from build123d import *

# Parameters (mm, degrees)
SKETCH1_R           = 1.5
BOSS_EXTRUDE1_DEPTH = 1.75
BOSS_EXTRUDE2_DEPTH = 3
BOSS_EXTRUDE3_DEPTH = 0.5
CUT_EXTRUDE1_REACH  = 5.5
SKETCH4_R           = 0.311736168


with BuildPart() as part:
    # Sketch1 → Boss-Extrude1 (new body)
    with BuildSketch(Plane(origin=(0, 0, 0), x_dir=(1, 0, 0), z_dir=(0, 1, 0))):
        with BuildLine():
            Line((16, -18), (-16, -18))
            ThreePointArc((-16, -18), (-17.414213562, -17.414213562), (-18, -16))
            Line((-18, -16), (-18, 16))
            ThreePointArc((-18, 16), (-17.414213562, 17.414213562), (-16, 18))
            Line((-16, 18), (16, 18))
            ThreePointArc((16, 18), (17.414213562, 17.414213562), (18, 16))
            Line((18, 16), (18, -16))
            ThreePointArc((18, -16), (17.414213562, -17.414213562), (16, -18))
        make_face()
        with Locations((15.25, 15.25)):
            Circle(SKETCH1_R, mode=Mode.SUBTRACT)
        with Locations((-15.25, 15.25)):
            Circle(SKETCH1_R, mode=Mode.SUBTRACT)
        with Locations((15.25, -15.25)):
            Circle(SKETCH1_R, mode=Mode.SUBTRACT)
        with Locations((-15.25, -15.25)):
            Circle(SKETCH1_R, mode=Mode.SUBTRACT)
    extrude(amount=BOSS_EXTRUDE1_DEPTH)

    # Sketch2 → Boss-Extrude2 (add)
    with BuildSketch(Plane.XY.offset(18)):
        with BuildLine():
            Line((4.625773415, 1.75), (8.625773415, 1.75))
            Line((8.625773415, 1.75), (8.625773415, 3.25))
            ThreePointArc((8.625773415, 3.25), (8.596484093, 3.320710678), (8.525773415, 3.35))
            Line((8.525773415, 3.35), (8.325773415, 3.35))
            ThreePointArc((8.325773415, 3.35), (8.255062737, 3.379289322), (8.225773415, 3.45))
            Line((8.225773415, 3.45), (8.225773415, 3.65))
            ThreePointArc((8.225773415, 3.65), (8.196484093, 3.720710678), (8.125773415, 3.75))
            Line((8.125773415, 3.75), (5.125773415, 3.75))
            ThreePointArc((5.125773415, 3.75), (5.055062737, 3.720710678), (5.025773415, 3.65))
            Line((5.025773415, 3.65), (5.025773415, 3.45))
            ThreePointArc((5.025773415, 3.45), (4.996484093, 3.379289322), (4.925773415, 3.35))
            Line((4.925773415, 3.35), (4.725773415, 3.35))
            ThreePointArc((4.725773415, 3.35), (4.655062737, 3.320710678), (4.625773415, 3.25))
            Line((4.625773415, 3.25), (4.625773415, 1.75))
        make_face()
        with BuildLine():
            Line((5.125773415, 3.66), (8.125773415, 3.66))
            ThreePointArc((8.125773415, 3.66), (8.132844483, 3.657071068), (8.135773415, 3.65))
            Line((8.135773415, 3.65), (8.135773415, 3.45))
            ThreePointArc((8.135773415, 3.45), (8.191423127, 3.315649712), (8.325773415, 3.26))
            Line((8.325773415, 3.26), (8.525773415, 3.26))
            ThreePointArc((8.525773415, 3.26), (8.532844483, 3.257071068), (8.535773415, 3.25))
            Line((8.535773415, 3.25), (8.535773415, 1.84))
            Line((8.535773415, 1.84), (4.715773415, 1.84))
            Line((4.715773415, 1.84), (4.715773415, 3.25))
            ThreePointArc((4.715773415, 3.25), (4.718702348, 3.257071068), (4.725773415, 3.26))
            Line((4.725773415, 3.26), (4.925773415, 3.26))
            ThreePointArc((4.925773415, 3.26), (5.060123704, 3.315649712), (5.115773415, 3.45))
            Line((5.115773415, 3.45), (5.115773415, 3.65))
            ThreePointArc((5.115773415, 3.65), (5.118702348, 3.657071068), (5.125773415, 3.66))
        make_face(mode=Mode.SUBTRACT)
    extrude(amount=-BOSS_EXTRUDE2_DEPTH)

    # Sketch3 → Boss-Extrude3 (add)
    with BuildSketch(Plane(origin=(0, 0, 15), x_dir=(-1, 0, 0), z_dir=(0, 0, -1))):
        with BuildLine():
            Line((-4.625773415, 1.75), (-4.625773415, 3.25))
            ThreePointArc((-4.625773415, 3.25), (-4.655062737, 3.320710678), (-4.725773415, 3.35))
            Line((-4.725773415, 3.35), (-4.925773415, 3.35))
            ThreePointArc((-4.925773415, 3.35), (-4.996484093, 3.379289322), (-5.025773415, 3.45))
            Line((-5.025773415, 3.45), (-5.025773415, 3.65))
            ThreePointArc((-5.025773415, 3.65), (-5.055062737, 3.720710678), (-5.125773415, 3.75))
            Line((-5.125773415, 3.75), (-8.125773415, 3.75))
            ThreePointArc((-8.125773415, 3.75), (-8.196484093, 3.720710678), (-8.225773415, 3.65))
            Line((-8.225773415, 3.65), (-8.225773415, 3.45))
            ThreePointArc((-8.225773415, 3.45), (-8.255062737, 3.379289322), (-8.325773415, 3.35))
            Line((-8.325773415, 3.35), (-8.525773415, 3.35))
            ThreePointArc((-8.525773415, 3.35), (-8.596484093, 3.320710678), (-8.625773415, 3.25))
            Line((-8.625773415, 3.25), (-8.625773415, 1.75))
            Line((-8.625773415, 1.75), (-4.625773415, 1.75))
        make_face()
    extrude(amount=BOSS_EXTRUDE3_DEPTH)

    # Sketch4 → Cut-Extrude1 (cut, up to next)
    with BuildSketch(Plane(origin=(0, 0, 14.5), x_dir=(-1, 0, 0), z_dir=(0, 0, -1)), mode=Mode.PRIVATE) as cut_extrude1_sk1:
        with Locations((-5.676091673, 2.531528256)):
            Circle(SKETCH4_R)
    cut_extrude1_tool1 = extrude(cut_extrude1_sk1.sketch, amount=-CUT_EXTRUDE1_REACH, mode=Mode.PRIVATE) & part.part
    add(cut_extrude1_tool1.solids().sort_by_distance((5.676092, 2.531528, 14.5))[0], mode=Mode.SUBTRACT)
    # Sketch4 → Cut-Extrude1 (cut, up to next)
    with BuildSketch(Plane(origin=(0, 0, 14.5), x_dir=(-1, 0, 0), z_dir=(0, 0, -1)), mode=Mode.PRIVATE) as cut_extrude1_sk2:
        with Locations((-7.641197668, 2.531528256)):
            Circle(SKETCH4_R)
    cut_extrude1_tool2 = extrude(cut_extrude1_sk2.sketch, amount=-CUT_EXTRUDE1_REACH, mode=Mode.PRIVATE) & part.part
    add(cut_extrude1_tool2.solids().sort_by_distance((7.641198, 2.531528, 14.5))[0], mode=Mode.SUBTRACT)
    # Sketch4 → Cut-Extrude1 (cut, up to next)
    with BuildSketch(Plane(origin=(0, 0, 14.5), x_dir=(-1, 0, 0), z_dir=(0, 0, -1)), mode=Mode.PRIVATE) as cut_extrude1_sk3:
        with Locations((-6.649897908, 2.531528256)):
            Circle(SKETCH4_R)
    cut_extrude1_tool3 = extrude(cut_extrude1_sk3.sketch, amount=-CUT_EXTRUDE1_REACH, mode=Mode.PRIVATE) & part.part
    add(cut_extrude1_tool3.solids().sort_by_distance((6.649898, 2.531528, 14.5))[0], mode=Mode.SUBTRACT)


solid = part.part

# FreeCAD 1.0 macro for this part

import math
import FreeCAD as App
import Part
import Sketcher
from FreeCAD import Vector

doc = App.newDocument("Part")
params = doc.addObject("Spreadsheet::Sheet", "Params")
for row, (alias, value) in enumerate([
    ("sketch1_diameter", "3 mm"),
    ("sketch1_radius", "2 mm"),
    ("sketch1_width", "32 mm"),
    ("pad1_length", "1.75 mm"),
    ("sketch2_radius", "0.1 mm"),
    ("sketch2_width", "4 mm"),
    ("sketch2_width2", "3 mm"),
    ("sketch2_radius2", "0.01 mm"),
    ("sketch2_height", "1.5 mm"),
    ("pad2_length", "3 mm"),
    ("sketch3_radius", "0.1 mm"),
    ("sketch3_width", "3 mm"),
    ("sketch3_width2", "4 mm"),
    ("sketch3_height", "1.5 mm"),
    ("pad3_length", "0.5 mm"),
], start=1):
    params.set(f"A{row}", alias)
    params.set(f"B{row}", "=" + value)
    params.setAlias(f"B{row}", alias)

body = doc.addObject("PartDesign::Body", "Body")

# Sketch on XZ plane
sketch1 = body.newObject("Sketcher::SketchObject", "Sketch")
sketch1.AttachmentSupport = (doc.getObject("XZ_Plane"), [""])
sketch1.MapMode = "FlatFace"
sketch1.addGeometry(Part.LineSegment(Vector(-16, 18, 0), Vector(16, 18, 0)), False)
sketch1.addGeometry(Part.ArcOfCircle(Part.Circle(Vector(16, 16, 0), Vector(0, 0, 1), 2), math.radians(0), math.radians(90)), False)
sketch1.addGeometry(Part.LineSegment(Vector(18, 16, 0), Vector(18, -16, 0)), False)
sketch1.addGeometry(Part.ArcOfCircle(Part.Circle(Vector(16, -16, 0), Vector(0, 0, 1), 2), math.radians(-90), math.radians(0)), False)
sketch1.addGeometry(Part.LineSegment(Vector(16, -18, 0), Vector(-16, -18, 0)), False)
sketch1.addGeometry(Part.ArcOfCircle(Part.Circle(Vector(-16, -16, 0), Vector(0, 0, 1), 2), math.radians(-180), math.radians(-90)), False)
sketch1.addGeometry(Part.LineSegment(Vector(-18, -16, 0), Vector(-18, 16, 0)), False)
sketch1.addGeometry(Part.ArcOfCircle(Part.Circle(Vector(-16, 16, 0), Vector(0, 0, 1), 2), math.radians(90), math.radians(180)), False)
sketch1.addGeometry(Part.Circle(Vector(15.25, 15.25, 0), Vector(0, 0, 1), 1.5), False)
sketch1.addGeometry(Part.Circle(Vector(-15.25, 15.25, 0), Vector(0, 0, 1), 1.5), False)
sketch1.addGeometry(Part.Circle(Vector(15.25, -15.25, 0), Vector(0, 0, 1), 1.5), False)
sketch1.addGeometry(Part.Circle(Vector(-15.25, -15.25, 0), Vector(0, 0, 1), 1.5), False)
sketch1.addConstraint(Sketcher.Constraint("Tangent", 0, 2, 1, 2))
sketch1.addConstraint(Sketcher.Constraint("Tangent", 1, 1, 2, 1))
sketch1.addConstraint(Sketcher.Constraint("Tangent", 2, 2, 3, 2))
sketch1.addConstraint(Sketcher.Constraint("Tangent", 3, 1, 4, 1))
sketch1.addConstraint(Sketcher.Constraint("Tangent", 4, 2, 5, 2))
sketch1.addConstraint(Sketcher.Constraint("Tangent", 5, 1, 6, 1))
sketch1.addConstraint(Sketcher.Constraint("Tangent", 6, 2, 7, 2))
sketch1.addConstraint(Sketcher.Constraint("Tangent", 7, 1, 0, 1))
sketch1.addConstraint(Sketcher.Constraint("Horizontal", 0))
sketch1.addConstraint(Sketcher.Constraint("Vertical", 2))
sketch1.addConstraint(Sketcher.Constraint("Horizontal", 4))
sketch1.addConstraint(Sketcher.Constraint("Vertical", 6))
sketch1.addConstraint(Sketcher.Constraint("Equal", 1, 3))
sketch1.addConstraint(Sketcher.Constraint("Equal", 3, 5))
sketch1.addConstraint(Sketcher.Constraint("Equal", 5, 7))
sketch1.addConstraint(Sketcher.Constraint("Equal", 8, 9))
sketch1.addConstraint(Sketcher.Constraint("Equal", 9, 10))
sketch1.addConstraint(Sketcher.Constraint("Equal", 10, 11))
sketch1.addConstraint(Sketcher.Constraint("Symmetric", 1, 3, 5, 3, -1, 1))
sketch1.addConstraint(Sketcher.Constraint("Symmetric", 9, 3, 10, 3, -1, 1))
sketch1.addConstraint(Sketcher.Constraint("Symmetric", 8, 3, 11, 3, -1, 1))
sketch1.addConstraint(Sketcher.Constraint("Symmetric", 8, 3, 9, 3, -2))
sketch1.addConstraint(Sketcher.Constraint("Equal", 4, 2))
sketch1.addConstraint(Sketcher.Constraint("Diameter", 8, 3.0))
sketch1.addConstraint(Sketcher.Constraint("Radius", 1, 2.0))
sketch1.addConstraint(Sketcher.Constraint("DistanceX", 0, 1, 0, 2, 32.0))
sketch1.addConstraint(Sketcher.Constraint("DistanceX", 9, 3, 8, 3, 30.5))
sketch1.addConstraint(Sketcher.Constraint("DistanceY", 10, 3, 8, 3, 30.5))
sketch1.setExpression("Constraints[23]", "Params.sketch1_diameter")
sketch1.setExpression("Constraints[24]", "Params.sketch1_radius")
sketch1.setExpression("Constraints[25]", "Params.sketch1_width")
pad1 = body.newObject("PartDesign::Pad", "Pad")
pad1.Profile = sketch1
pad1.setExpression("Length", "Params.pad1_length")
pad1.Reversed = True

# Sketch on XY plane
sketch2 = body.newObject("Sketcher::SketchObject", "Sketch001")
sketch2.AttachmentSupport = (doc.getObject("XY_Plane"), [""])
sketch2.MapMode = "FlatFace"
sketch2.AttachmentOffset = App.Placement(Vector(0, 0, 18), App.Rotation())
sketch2.addGeometry(Part.LineSegment(Vector(4.625773, 1.75, 0), Vector(8.625773, 1.75, 0)), False)
sketch2.addGeometry(Part.LineSegment(Vector(8.625773, 1.75, 0), Vector(8.625773, 3.25, 0)), False)
sketch2.addGeometry(Part.ArcOfCircle(Part.Circle(Vector(8.525773, 3.25, 0), Vector(0, 0, 1), 0.1), math.radians(0), math.radians(90)), False)
sketch2.addGeometry(Part.LineSegment(Vector(8.525773, 3.35, 0), Vector(8.325773, 3.35, 0)), False)
sketch2.addGeometry(Part.ArcOfCircle(Part.Circle(Vector(8.325773, 3.45, 0), Vector(0, 0, 1), 0.1), math.radians(180), math.radians(270)), False)
sketch2.addGeometry(Part.LineSegment(Vector(8.225773, 3.45, 0), Vector(8.225773, 3.65, 0)), False)
sketch2.addGeometry(Part.ArcOfCircle(Part.Circle(Vector(8.125773, 3.65, 0), Vector(0, 0, 1), 0.1), math.radians(0), math.radians(90)), False)
sketch2.addGeometry(Part.LineSegment(Vector(8.125773, 3.75, 0), Vector(5.125773, 3.75, 0)), False)
sketch2.addGeometry(Part.ArcOfCircle(Part.Circle(Vector(5.125773, 3.65, 0), Vector(0, 0, 1), 0.1), math.radians(90), math.radians(180)), False)
sketch2.addGeometry(Part.LineSegment(Vector(5.025773, 3.65, 0), Vector(5.025773, 3.45, 0)), False)
sketch2.addGeometry(Part.ArcOfCircle(Part.Circle(Vector(4.925773, 3.45, 0), Vector(0, 0, 1), 0.1), math.radians(-90), math.radians(0)), False)
sketch2.addGeometry(Part.LineSegment(Vector(4.925773, 3.35, 0), Vector(4.725773, 3.35, 0)), False)
sketch2.addGeometry(Part.ArcOfCircle(Part.Circle(Vector(4.725773, 3.25, 0), Vector(0, 0, 1), 0.1), math.radians(90), math.radians(180)), False)
sketch2.addGeometry(Part.LineSegment(Vector(4.625773, 3.25, 0), Vector(4.625773, 1.75, 0)), False)
sketch2.addGeometry(Part.ArcOfCircle(Part.Circle(Vector(5.125773, 3.65, 0), Vector(0, 0, 1), 0.01), math.radians(90.000006), math.radians(179.999994)), False)
sketch2.addGeometry(Part.LineSegment(Vector(5.125773, 3.66, 0), Vector(8.125773, 3.66, 0)), False)
sketch2.addGeometry(Part.ArcOfCircle(Part.Circle(Vector(8.125773, 3.65, 0), Vector(0, 0, 1), 0.01), math.radians(-0.000006), math.radians(90.000006)), False)
sketch2.addGeometry(Part.LineSegment(Vector(8.135773, 3.65, 0), Vector(8.135773, 3.45, 0)), False)
sketch2.addGeometry(Part.ArcOfCircle(Part.Circle(Vector(8.325773, 3.45, 0), Vector(0, 0, 1), 0.19), math.radians(-180), math.radians(-90)), False)
sketch2.addGeometry(Part.LineSegment(Vector(8.325773, 3.26, 0), Vector(8.525773, 3.26, 0)), False)
sketch2.addGeometry(Part.ArcOfCircle(Part.Circle(Vector(8.525773, 3.25, 0), Vector(0, 0, 1), 0.01), math.radians(-0.000006), math.radians(90.000006)), False)
sketch2.addGeometry(Part.LineSegment(Vector(8.535773, 3.25, 0), Vector(8.535773, 1.84, 0)), False)
sketch2.addGeometry(Part.LineSegment(Vector(8.535773, 1.84, 0), Vector(4.715773, 1.84, 0)), False)
sketch2.addGeometry(Part.LineSegment(Vector(4.715773, 1.84, 0), Vector(4.715773, 3.25, 0)), False)
sketch2.addGeometry(Part.ArcOfCircle(Part.Circle(Vector(4.725773, 3.25, 0), Vector(0, 0, 1), 0.01), math.radians(90.000006), math.radians(179.999994)), False)
sketch2.addGeometry(Part.LineSegment(Vector(4.725773, 3.26, 0), Vector(4.925773, 3.26, 0)), False)
sketch2.addGeometry(Part.ArcOfCircle(Part.Circle(Vector(4.925773, 3.45, 0), Vector(0, 0, 1), 0.19), math.radians(-90), math.radians(0)), False)
sketch2.addGeometry(Part.LineSegment(Vector(5.115773, 3.45, 0), Vector(5.115773, 3.65, 0)), False)
sketch2.addConstraint(Sketcher.Constraint("Coincident", 0, 2, 1, 1))
sketch2.addConstraint(Sketcher.Constraint("Tangent", 1, 2, 2, 1))
sketch2.addConstraint(Sketcher.Constraint("Tangent", 2, 2, 3, 1))
sketch2.addConstraint(Sketcher.Constraint("Tangent", 3, 2, 4, 2))
sketch2.addConstraint(Sketcher.Constraint("Tangent", 4, 1, 5, 1))
sketch2.addConstraint(Sketcher.Constraint("Tangent", 5, 2, 6, 1))
sketch2.addConstraint(Sketcher.Constraint("Tangent", 6, 2, 7, 1))
sketch2.addConstraint(Sketcher.Constraint("Tangent", 7, 2, 8, 1))
sketch2.addConstraint(Sketcher.Constraint("Tangent", 8, 2, 9, 1))
sketch2.addConstraint(Sketcher.Constraint("Tangent", 9, 2, 10, 2))
sketch2.addConstraint(Sketcher.Constraint("Tangent", 10, 1, 11, 1))
sketch2.addConstraint(Sketcher.Constraint("Tangent", 11, 2, 12, 1))
sketch2.addConstraint(Sketcher.Constraint("Tangent", 12, 2, 13, 1))
sketch2.addConstraint(Sketcher.Constraint("Coincident", 13, 2, 0, 1))
sketch2.addConstraint(Sketcher.Constraint("Tangent", 14, 1, 15, 1))
sketch2.addConstraint(Sketcher.Constraint("Tangent", 15, 2, 16, 2))
sketch2.addConstraint(Sketcher.Constraint("Tangent", 16, 1, 17, 1))
sketch2.addConstraint(Sketcher.Constraint("Tangent", 17, 2, 18, 1))
sketch2.addConstraint(Sketcher.Constraint("Tangent", 18, 2, 19, 1))
sketch2.addConstraint(Sketcher.Constraint("Tangent", 19, 2, 20, 2))
sketch2.addConstraint(Sketcher.Constraint("Tangent", 20, 1, 21, 1))
sketch2.addConstraint(Sketcher.Constraint("Coincident", 21, 2, 22, 1))
sketch2.addConstraint(Sketcher.Constraint("Coincident", 22, 2, 23, 1))
sketch2.addConstraint(Sketcher.Constraint("Tangent", 23, 2, 24, 2))
sketch2.addConstraint(Sketcher.Constraint("Tangent", 24, 1, 25, 1))
sketch2.addConstraint(Sketcher.Constraint("Tangent", 25, 2, 26, 1))
sketch2.addConstraint(Sketcher.Constraint("Tangent", 26, 2, 27, 1))
sketch2.addConstraint(Sketcher.Constraint("Tangent", 27, 2, 14, 2))
sketch2.addConstraint(Sketcher.Constraint("Horizontal", 0))
sketch2.addConstraint(Sketcher.Constraint("Vertical", 1))
sketch2.addConstraint(Sketcher.Constraint("Horizontal", 3))
sketch2.addConstraint(Sketcher.Constraint("Vertical", 5))
sketch2.addConstraint(Sketcher.Constraint("Horizontal", 7))
sketch2.addConstraint(Sketcher.Constraint("Vertical", 9))
sketch2.addConstraint(Sketcher.Constraint("Horizontal", 11))
sketch2.addConstraint(Sketcher.Constraint("Vertical", 13))
sketch2.addConstraint(Sketcher.Constraint("Horizontal", 15))
sketch2.addConstraint(Sketcher.Constraint("Vertical", 17))
sketch2.addConstraint(Sketcher.Constraint("Horizontal", 19))
sketch2.addConstraint(Sketcher.Constraint("Vertical", 21))
sketch2.addConstraint(Sketcher.Constraint("Horizontal", 22))
sketch2.addConstraint(Sketcher.Constraint("Vertical", 23))
sketch2.addConstraint(Sketcher.Constraint("Horizontal", 25))
sketch2.addConstraint(Sketcher.Constraint("Vertical", 27))
sketch2.addConstraint(Sketcher.Constraint("Coincident", 14, 3, 8, 3))
sketch2.addConstraint(Sketcher.Constraint("Coincident", 16, 3, 6, 3))
sketch2.addConstraint(Sketcher.Constraint("Coincident", 18, 3, 4, 3))
sketch2.addConstraint(Sketcher.Constraint("Coincident", 20, 3, 2, 3))
sketch2.addConstraint(Sketcher.Constraint("Coincident", 24, 3, 12, 3))
sketch2.addConstraint(Sketcher.Constraint("Coincident", 26, 3, 10, 3))
sketch2.addConstraint(Sketcher.Constraint("Equal", 2, 4))
sketch2.addConstraint(Sketcher.Constraint("Equal", 4, 6))
sketch2.addConstraint(Sketcher.Constraint("Equal", 6, 8))
sketch2.addConstraint(Sketcher.Constraint("Equal", 8, 10))
sketch2.addConstraint(Sketcher.Constraint("Equal", 10, 12))
sketch2.addConstraint(Sketcher.Constraint("Horizontal", 4, 3, 10, 3))
sketch2.addConstraint(Sketcher.Constraint("Equal", 3, 11))
sketch2.addConstraint(Sketcher.Constraint("Equal", 25, 5))
sketch2.addConstraint(Sketcher.Constraint("Radius", 2, 0.1))
sketch2.addConstraint(Sketcher.Constraint("DistanceX", 0, 1, 0, 2, 4.0))
sketch2.addConstraint(Sketcher.Constraint("DistanceX", 7, 2, 7, 1, 3.0))
sketch2.addConstraint(Sketcher.Constraint("Radius", 14, 0.01))
sketch2.addConstraint(Sketcher.Constraint("DistanceY", 1, 1, 1, 2, 1.5))
sketch2.addConstraint(Sketcher.Constraint("DistanceY", 21, 2, 21, 1, 1.41))
sketch2.addConstraint(Sketcher.Constraint("DistanceY", -1, 1, 2, 3, 3.25))
sketch2.addConstraint(Sketcher.Constraint("DistanceX", -1, 1, 2, 3, 8.525773))
sketch2.setExpression("Constraints[58]", "Params.sketch2_radius")
sketch2.setExpression("Constraints[59]", "Params.sketch2_width")
sketch2.setExpression("Constraints[60]", "Params.sketch2_width2")
sketch2.setExpression("Constraints[61]", "Params.sketch2_radius2")
sketch2.setExpression("Constraints[62]", "Params.sketch2_height")
pad2 = body.newObject("PartDesign::Pad", "Pad001")
pad2.Profile = sketch2
pad2.setExpression("Length", "Params.pad2_length")
pad2.Reversed = True

# Sketch on XY plane
sketch3 = body.newObject("Sketcher::SketchObject", "Sketch002")
sketch3.AttachmentSupport = (doc.getObject("XY_Plane"), [""])
sketch3.MapMode = "FlatFace"
sketch3.AttachmentOffset = App.Placement(Vector(0, 0, 15), App.Rotation())
sketch3.addGeometry(Part.LineSegment(Vector(4.625773, 1.75, 0), Vector(4.625773, 3.25, 0)), False)
sketch3.addGeometry(Part.ArcOfCircle(Part.Circle(Vector(4.725773, 3.25, 0), Vector(0, 0, 1), 0.1), math.radians(90), math.radians(180)), False)
sketch3.addGeometry(Part.LineSegment(Vector(4.725773, 3.35, 0), Vector(4.925773, 3.35, 0)), False)
sketch3.addGeometry(Part.ArcOfCircle(Part.Circle(Vector(4.925773, 3.45, 0), Vector(0, 0, 1), 0.1), math.radians(-90), math.radians(0)), False)
sketch3.addGeometry(Part.LineSegment(Vector(5.025773, 3.45, 0), Vector(5.025773, 3.65, 0)), False)
sketch3.addGeometry(Part.ArcOfCircle(Part.Circle(Vector(5.125773, 3.65, 0), Vector(0, 0, 1), 0.1), math.radians(90), math.radians(180)), False)
sketch3.addGeometry(Part.LineSegment(Vector(5.125773, 3.75, 0), Vector(8.125773, 3.75, 0)), False)
sketch3.addGeometry(Part.ArcOfCircle(Part.Circle(Vector(8.125773, 3.65, 0), Vector(0, 0, 1), 0.1), math.radians(0), math.radians(90)), False)
sketch3.addGeometry(Part.LineSegment(Vector(8.225773, 3.65, 0), Vector(8.225773, 3.45, 0)), False)
sketch3.addGeometry(Part.ArcOfCircle(Part.Circle(Vector(8.325773, 3.45, 0), Vector(0, 0, 1), 0.1), math.radians(180), math.radians(270)), False)
sketch3.addGeometry(Part.LineSegment(Vector(8.325773, 3.35, 0), Vector(8.525773, 3.35, 0)), False)
sketch3.addGeometry(Part.ArcOfCircle(Part.Circle(Vector(8.525773, 3.25, 0), Vector(0, 0, 1), 0.1), math.radians(0), math.radians(90)), False)
sketch3.addGeometry(Part.LineSegment(Vector(8.625773, 3.25, 0), Vector(8.625773, 1.75, 0)), False)
sketch3.addGeometry(Part.LineSegment(Vector(8.625773, 1.75, 0), Vector(4.625773, 1.75, 0)), False)
sketch3.addConstraint(Sketcher.Constraint("Tangent", 0, 2, 1, 2))
sketch3.addConstraint(Sketcher.Constraint("Tangent", 1, 1, 2, 1))
sketch3.addConstraint(Sketcher.Constraint("Tangent", 2, 2, 3, 1))
sketch3.addConstraint(Sketcher.Constraint("Tangent", 3, 2, 4, 1))
sketch3.addConstraint(Sketcher.Constraint("Tangent", 4, 2, 5, 2))
sketch3.addConstraint(Sketcher.Constraint("Tangent", 5, 1, 6, 1))
sketch3.addConstraint(Sketcher.Constraint("Tangent", 6, 2, 7, 2))
sketch3.addConstraint(Sketcher.Constraint("Tangent", 7, 1, 8, 1))
sketch3.addConstraint(Sketcher.Constraint("Tangent", 8, 2, 9, 1))
sketch3.addConstraint(Sketcher.Constraint("Tangent", 9, 2, 10, 1))
sketch3.addConstraint(Sketcher.Constraint("Tangent", 10, 2, 11, 2))
sketch3.addConstraint(Sketcher.Constraint("Tangent", 11, 1, 12, 1))
sketch3.addConstraint(Sketcher.Constraint("Coincident", 12, 2, 13, 1))
sketch3.addConstraint(Sketcher.Constraint("Coincident", 13, 2, 0, 1))
sketch3.addConstraint(Sketcher.Constraint("Vertical", 0))
sketch3.addConstraint(Sketcher.Constraint("Horizontal", 2))
sketch3.addConstraint(Sketcher.Constraint("Vertical", 4))
sketch3.addConstraint(Sketcher.Constraint("Horizontal", 6))
sketch3.addConstraint(Sketcher.Constraint("Vertical", 8))
sketch3.addConstraint(Sketcher.Constraint("Horizontal", 10))
sketch3.addConstraint(Sketcher.Constraint("Vertical", 12))
sketch3.addConstraint(Sketcher.Constraint("Horizontal", 13))
sketch3.addConstraint(Sketcher.Constraint("Equal", 1, 3))
sketch3.addConstraint(Sketcher.Constraint("Equal", 3, 5))
sketch3.addConstraint(Sketcher.Constraint("Equal", 5, 7))
sketch3.addConstraint(Sketcher.Constraint("Equal", 7, 9))
sketch3.addConstraint(Sketcher.Constraint("Equal", 9, 11))
sketch3.addConstraint(Sketcher.Constraint("Horizontal", 3, 3, 9, 3))
sketch3.addConstraint(Sketcher.Constraint("Equal", 2, 10))
sketch3.addConstraint(Sketcher.Constraint("Equal", 10, 4))
sketch3.addConstraint(Sketcher.Constraint("Radius", 1, 0.1))
sketch3.addConstraint(Sketcher.Constraint("DistanceX", 6, 1, 6, 2, 3.0))
sketch3.addConstraint(Sketcher.Constraint("DistanceX", 13, 2, 13, 1, 4.0))
sketch3.addConstraint(Sketcher.Constraint("DistanceY", 0, 1, 0, 2, 1.5))
sketch3.addConstraint(Sketcher.Constraint("DistanceY", -1, 1, 1, 3, 3.25))
sketch3.addConstraint(Sketcher.Constraint("DistanceX", -1, 1, 1, 3, 4.725773))
sketch3.setExpression("Constraints[30]", "Params.sketch3_radius")
sketch3.setExpression("Constraints[31]", "Params.sketch3_width")
sketch3.setExpression("Constraints[32]", "Params.sketch3_width2")
sketch3.setExpression("Constraints[33]", "Params.sketch3_height")
pad3 = body.newObject("PartDesign::Pad", "Pad002")
pad3.Profile = sketch3
pad3.setExpression("Length", "Params.pad3_length")
pad3.Reversed = True

# Sketch on XY plane
sketch4 = body.newObject("Sketcher::SketchObject", "Sketch003")
sketch4.AttachmentSupport = (doc.getObject("XY_Plane"), [""])
sketch4.MapMode = "FlatFace"
sketch4.AttachmentOffset = App.Placement(Vector(0, 0, 14.5), App.Rotation())
sketch4.addGeometry(Part.Circle(Vector(5.676092, 2.531528, 0), Vector(0, 0, 1), 0.311736), False)
sketch4.addConstraint(Sketcher.Constraint("Diameter", 0, 0.623472))
sketch4.addConstraint(Sketcher.Constraint("DistanceX", -1, 1, 0, 3, 5.676092))
sketch4.addConstraint(Sketcher.Constraint("DistanceY", -1, 1, 0, 3, 2.531528))
pocket1 = body.newObject("PartDesign::Pocket", "Pocket")
pocket1.Profile = sketch4
pocket1.Type = "UpToFirst"
pocket1.Reversed = True

# Sketch on XY plane
sketch5 = body.newObject("Sketcher::SketchObject", "Sketch004")
sketch5.AttachmentSupport = (doc.getObject("XY_Plane"), [""])
sketch5.MapMode = "FlatFace"
sketch5.AttachmentOffset = App.Placement(Vector(0, 0, 14.5), App.Rotation())
sketch5.addGeometry(Part.Circle(Vector(7.641198, 2.531528, 0), Vector(0, 0, 1), 0.311736), False)
sketch5.addConstraint(Sketcher.Constraint("Diameter", 0, 0.623472))
sketch5.addConstraint(Sketcher.Constraint("DistanceY", -1, 1, 0, 3, 2.531528))
sketch5.addConstraint(Sketcher.Constraint("DistanceX", -1, 1, 0, 3, 7.641198))
pocket2 = body.newObject("PartDesign::Pocket", "Pocket001")
pocket2.Profile = sketch5
pocket2.Type = "UpToFirst"
pocket2.Reversed = True

# Sketch on XY plane
sketch6 = body.newObject("Sketcher::SketchObject", "Sketch005")
sketch6.AttachmentSupport = (doc.getObject("XY_Plane"), [""])
sketch6.MapMode = "FlatFace"
sketch6.AttachmentOffset = App.Placement(Vector(0, 0, 14.5), App.Rotation())
sketch6.addGeometry(Part.Circle(Vector(6.649898, 2.531528, 0), Vector(0, 0, 1), 0.311736), False)
sketch6.addConstraint(Sketcher.Constraint("Diameter", 0, 0.623472))
sketch6.addConstraint(Sketcher.Constraint("DistanceY", -1, 1, 0, 3, 2.531528))
sketch6.addConstraint(Sketcher.Constraint("DistanceX", -1, 1, 0, 3, 6.649898))
pocket3 = body.newObject("PartDesign::Pocket", "Pocket002")
pocket3.Profile = sketch6
pocket3.Type = "UpToFirst"
pocket3.Reversed = True

doc.recompute()
